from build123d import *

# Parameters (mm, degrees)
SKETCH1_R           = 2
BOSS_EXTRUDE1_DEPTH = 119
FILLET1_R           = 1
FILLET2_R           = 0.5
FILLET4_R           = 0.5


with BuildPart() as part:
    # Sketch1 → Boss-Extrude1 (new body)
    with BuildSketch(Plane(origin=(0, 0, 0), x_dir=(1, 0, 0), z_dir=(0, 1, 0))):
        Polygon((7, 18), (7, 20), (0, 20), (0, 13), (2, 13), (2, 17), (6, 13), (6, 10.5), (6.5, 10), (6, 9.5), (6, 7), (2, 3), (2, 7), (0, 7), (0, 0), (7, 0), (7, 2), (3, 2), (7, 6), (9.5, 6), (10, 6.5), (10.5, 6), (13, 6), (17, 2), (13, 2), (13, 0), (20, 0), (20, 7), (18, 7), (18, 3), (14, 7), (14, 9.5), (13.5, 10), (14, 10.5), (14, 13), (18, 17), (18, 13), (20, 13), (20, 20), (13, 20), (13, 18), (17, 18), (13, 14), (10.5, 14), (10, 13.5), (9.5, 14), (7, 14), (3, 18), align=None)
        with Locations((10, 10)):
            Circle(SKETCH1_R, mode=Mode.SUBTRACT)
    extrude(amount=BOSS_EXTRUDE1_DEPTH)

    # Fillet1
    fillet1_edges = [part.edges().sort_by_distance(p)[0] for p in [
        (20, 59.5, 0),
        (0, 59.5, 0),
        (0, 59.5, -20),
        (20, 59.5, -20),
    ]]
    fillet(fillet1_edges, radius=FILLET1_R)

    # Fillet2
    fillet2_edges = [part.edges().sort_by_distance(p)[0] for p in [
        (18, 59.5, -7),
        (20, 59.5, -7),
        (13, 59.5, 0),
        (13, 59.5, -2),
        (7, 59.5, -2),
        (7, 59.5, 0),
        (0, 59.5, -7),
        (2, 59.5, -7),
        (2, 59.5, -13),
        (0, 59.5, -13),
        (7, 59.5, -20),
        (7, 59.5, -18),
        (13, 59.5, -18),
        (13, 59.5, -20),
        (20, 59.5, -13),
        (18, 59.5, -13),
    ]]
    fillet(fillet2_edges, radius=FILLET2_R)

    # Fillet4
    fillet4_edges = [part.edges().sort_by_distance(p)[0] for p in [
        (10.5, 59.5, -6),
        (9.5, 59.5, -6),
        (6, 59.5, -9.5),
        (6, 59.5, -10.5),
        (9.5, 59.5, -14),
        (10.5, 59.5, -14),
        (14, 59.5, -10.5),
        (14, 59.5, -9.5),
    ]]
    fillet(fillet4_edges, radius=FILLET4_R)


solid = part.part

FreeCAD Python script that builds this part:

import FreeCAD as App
import Part
import Sketcher

V = App.Vector
Q = App.Units.Quantity


def edges_at(feature, points):
    """Names of the edges that pass closest to the given points."""
    edges = feature.Shape.Edges
    near = lambda p: min(range(len(edges)), key=lambda i: edges[i].distToShape(Part.Vertex(*p))[0])
    return sorted({f"Edge{near(p) + 1}" for p in points})


def add_polygon(sketch, points):
    """Adds a closed chain of lines whose ends are joined by coincident constraints."""
    first, n = sketch.GeometryCount, len(points)
    for a, b in zip(points, points[1:] + points[:1]):
        sketch.addGeometry(Part.LineSegment(App.Vector(*a, 0), App.Vector(*b, 0)), False)
    for i in range(n):
        sketch.addConstraint(Sketcher.Constraint("Coincident", first + i, 2, first + (i + 1) % n, 1))

doc = App.newDocument("Part")
body = doc.addObject("PartDesign::Body", "Body")

sketch1 = doc.addObject("Sketcher::SketchObject", "Sketch")
body.addObject(sketch1)
sketch1.AttachmentSupport = (doc.XZ_Plane, [""])
sketch1.MapMode = "FlatFace"
add_polygon(sketch1, [(7, -18), (7, -20), (0, -20), (0, -13), (2, -13), (2, -17), (6, -13), (6, -10.5), (6.5, -10), (6, -9.5), (6, -7), (2, -3), (2, -7), (0, -7), (0, 0), (7, 0), (7, -2), (3, -2), (7, -6), (9.5, -6), (10, -6.5), (10.5, -6), (13, -6), (17, -2), (13, -2), (13, 0), (20, 0), (20, -7), (18, -7), (18, -3), (14, -7), (14, -9.5), (13.5, -10), (14, -10.5), (14, -13), (18, -17), (18, -13), (20, -13), (20, -20), (13, -20), (13, -18), (17, -18), (13, -14), (10.5, -14), (10, -13.5), (9.5, -14), (7, -14), (3, -18)])
sketch1.addGeometry(Part.Circle(V(10, -10, 0), V(0, 0, 1), 2), False)
sketch1.addConstraint([
    Sketcher.Constraint("Vertical", 0),
    Sketcher.Constraint("Horizontal", 1),
    Sketcher.Constraint("Vertical", 2),
    Sketcher.Constraint("Horizontal", 3),
    Sketcher.Constraint("Vertical", 4),
    Sketcher.Constraint("Vertical", 6),
    Sketcher.Constraint("Vertical", 9),
    Sketcher.Constraint("Vertical", 11),
    Sketcher.Constraint("Horizontal", 12),
    Sketcher.Constraint("Vertical", 13),
    Sketcher.Constraint("Horizontal", 14),
    Sketcher.Constraint("Vertical", 15),
    Sketcher.Constraint("Horizontal", 16),
    Sketcher.Constraint("Horizontal", 18),
    Sketcher.Constraint("Horizontal", 21),
    Sketcher.Constraint("Horizontal", 23),
    Sketcher.Constraint("Vertical", 24),
    Sketcher.Constraint("Horizontal", 25),
    Sketcher.Constraint("Vertical", 26),
    Sketcher.Constraint("Horizontal", 27),
    Sketcher.Constraint("Vertical", 28),
    Sketcher.Constraint("Vertical", 30),
    Sketcher.Constraint("Vertical", 33),
    Sketcher.Constraint("Vertical", 35),
    Sketcher.Constraint("Horizontal", 36),
    Sketcher.Constraint("Vertical", 37),
    Sketcher.Constraint("Horizontal", 38),
    Sketcher.Constraint("Vertical", 39),
    Sketcher.Constraint("Horizontal", 40),
    Sketcher.Constraint("Horizontal", 42),
    Sketcher.Constraint("Horizontal", 45),
    Sketcher.Constraint("Horizontal", 47),
    Sketcher.Constraint("Coincident", 13, 2, -1, 1),
    Sketcher.Constraint("PointOnObject", 1, 2, -2),
    Sketcher.Constraint("PointOnObject", 24, 2, -1),
    Sketcher.Constraint("Parallel", 5, 7),
    Sketcher.Constraint("Perpendicular", 7, 8),
    Sketcher.Constraint("Parallel", 8, 10),
    Sketcher.Constraint("Parallel", 10, 17),
    Sketcher.Constraint("Parallel", 17, 19),
    Sketcher.Constraint("Perpendicular", 19, 20),
    Sketcher.Constraint("Parallel", 20, 22),
    Sketcher.Constraint("Parallel", 22, 29),
    Sketcher.Constraint("Parallel", 29, 31),
    Sketcher.Constraint("Perpendicular", 31, 32),
    Sketcher.Constraint("Parallel", 32, 34),
    Sketcher.Constraint("Parallel", 34, 41),
    Sketcher.Constraint("Parallel", 41, 43),
    Sketcher.Constraint("Perpendicular", 43, 44),
    Sketcher.Constraint("Parallel", 44, 46),
    Sketcher.Constraint("Horizontal", 3, 2, 5, 2),
    Sketcher.Constraint("Horizontal", 48, 3, 7, 2),
    Sketcher.Constraint("Horizontal", 9, 2, 11, 2),
    Sketcher.Constraint("Horizontal", 18, 2, 20, 2),
    Sketcher.Constraint("Horizontal", 16, 2, 22, 2),
    Sketcher.Constraint("Horizontal", 12, 2, 26, 2),
    Sketcher.Constraint("Horizontal", 10, 2, 28, 2),
    Sketcher.Constraint("Horizontal", 27, 2, 29, 2),
    Sketcher.Constraint("Horizontal", 8, 2, 30, 2),
    Sketcher.Constraint("Horizontal", 7, 2, 31, 2),
    Sketcher.Constraint("Horizontal", 6, 2, 32, 2),
    Sketcher.Constraint("Horizontal", 5, 2, 33, 2),
    Sketcher.Constraint("Horizontal", 4, 2, 34, 2),
    Sketcher.Constraint("Horizontal", 33, 2, 35, 2),
    Sketcher.Constraint("Horizontal", 1, 2, 37, 2),
    Sketcher.Constraint("Horizontal", 42, 2, 44, 2),
    Sketcher.Constraint("Horizontal", 40, 2, 46, 2),
    Sketcher.Constraint("Vertical", 6, 2, 8, 2),
    Sketcher.Constraint("Vertical", 4, 2, 10, 2),
    Sketcher.Constraint("Vertical", 0, 2, 14, 2),
    Sketcher.Constraint("Vertical", 15, 2, 17, 2),
    Sketcher.Constraint("Vertical", 48, 3, 19, 2),
    Sketcher.Constraint("Vertical", 21, 2, 23, 2),
    Sketcher.Constraint("Vertical", 30, 2, 32, 2),
    Sketcher.Constraint("Vertical", 26, 2, 36, 2),
    Sketcher.Constraint("Vertical", 24, 2, 38, 2),
    Sketcher.Constraint("Vertical", 22, 2, 40, 2),
    Sketcher.Constraint("Vertical", 39, 2, 41, 2),
    Sketcher.Constraint("Vertical", 20, 2, 42, 2),
    Sketcher.Constraint("Vertical", 19, 2, 43, 2),
    Sketcher.Constraint("Vertical", 17, 2, 45, 2),
    Sketcher.Constraint("Equal", 18, 21),
    Sketcher.Constraint("Equal", 14, 25),
    Sketcher.Constraint("Equal", 12, 27),
    Sketcher.Constraint("Equal", 36, 0),
    Sketcher.Constraint("Equal", 38, 2),
    Sketcher.Constraint("Equal", 47, 4),
    Sketcher.Constraint("Equal", 45, 6),
    Sketcher.Constraint("Equal", 6, 9),
    Sketcher.Constraint("Equal", 2, 13),
    Sketcher.Constraint("Equal", 0, 15),
    Sketcher.Constraint("Equal", 8, 19),
    Sketcher.Constraint("Diameter", 48, Q("4 mm")),
    Sketcher.Constraint("DistanceX", 1, 2, 1, 1, Q("7 mm")),
    Sketcher.Constraint("DistanceX", 3, 1, 3, 2, Q("2 mm")),
    Sketcher.Constraint("DistanceX", 16, 2, 16, 1, Q("4 mm")),
    Sketcher.Constraint("DistanceX", 18, 1, 18, 2, Q("2.5 mm")),
    Sketcher.Constraint("DistanceX", -1, 1, 48, 3, Q("10 mm")),
])
pad1 = doc.addObject("PartDesign::Pad", "Pad")
body.addObject(pad1)
pad1.Profile = sketch1
pad1.Length = 119
pad1.Reversed = True
doc.recompute()

fillet = doc.addObject("PartDesign::Fillet", "Fillet")
body.addObject(fillet)
fillet.Base = (pad1, edges_at(pad1, [
    (20, 59.5, 0),
    (0, 59.5, 0),
    (0, 59.5, -20),
    (20, 59.5, -20),
]))
fillet.Radius = 1
doc.recompute()

fillet2 = doc.addObject("PartDesign::Fillet", "Fillet001")
body.addObject(fillet2)
fillet2.Base = (fillet, edges_at(fillet, [
    (18, 59.5, -7),
    (20, 59.5, -7),
    (13, 59.5, 0),
    (13, 59.5, -2),
    (7, 59.5, -2),
    (7, 59.5, 0),
    (0, 59.5, -7),
    (2, 59.5, -7),
    (2, 59.5, -13),
    (0, 59.5, -13),
    (7, 59.5, -20),
    (7, 59.5, -18),
    (13, 59.5, -18),
    (13, 59.5, -20),
    (20, 59.5, -13),
    (18, 59.5, -13),
]))
fillet2.Radius = 0.5
doc.recompute()

fillet3 = doc.addObject("PartDesign::Fillet", "Fillet002")
body.addObject(fillet3)
fillet3.Base = (fillet2, edges_at(fillet2, [
    (10.5, 59.5, -6),
    (9.5, 59.5, -6),
    (6, 59.5, -9.5),
    (6, 59.5, -10.5),
    (9.5, 59.5, -14),
    (10.5, 59.5, -14),
    (14, 59.5, -10.5),
    (14, 59.5, -9.5),
]))
fillet3.Radius = 0.5

doc.recompute()
